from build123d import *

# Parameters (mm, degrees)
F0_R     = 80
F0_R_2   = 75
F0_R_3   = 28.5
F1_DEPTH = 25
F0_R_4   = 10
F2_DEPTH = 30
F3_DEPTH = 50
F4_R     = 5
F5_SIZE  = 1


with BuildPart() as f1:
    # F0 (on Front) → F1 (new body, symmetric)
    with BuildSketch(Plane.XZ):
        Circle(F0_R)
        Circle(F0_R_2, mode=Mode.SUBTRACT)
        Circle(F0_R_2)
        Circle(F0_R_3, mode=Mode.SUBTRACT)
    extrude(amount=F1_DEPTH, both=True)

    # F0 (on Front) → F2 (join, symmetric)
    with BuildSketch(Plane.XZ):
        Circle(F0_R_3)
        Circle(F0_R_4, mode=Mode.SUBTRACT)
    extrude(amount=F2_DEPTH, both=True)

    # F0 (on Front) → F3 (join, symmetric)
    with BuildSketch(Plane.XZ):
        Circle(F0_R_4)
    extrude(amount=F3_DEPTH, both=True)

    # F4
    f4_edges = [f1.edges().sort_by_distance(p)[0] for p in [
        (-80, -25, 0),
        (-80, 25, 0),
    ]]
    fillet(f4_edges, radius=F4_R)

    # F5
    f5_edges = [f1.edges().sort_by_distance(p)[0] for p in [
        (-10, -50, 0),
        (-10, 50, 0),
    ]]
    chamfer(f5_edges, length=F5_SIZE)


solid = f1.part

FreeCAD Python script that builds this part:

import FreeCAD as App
import Part
import Sketcher

V = App.Vector


def edges_at(feature, points):
    """Names of the edges that pass closest to the given points."""
    edges = feature.Shape.Edges
    near = lambda p: min(range(len(edges)), key=lambda i: edges[i].distToShape(Part.Vertex(*p))[0])
    return sorted({f"Edge{near(p) + 1}" for p in points})

doc = App.newDocument("Part")
body = doc.addObject("PartDesign::Body", "Body")

sketch1 = body.newObject("Sketcher::SketchObject", "Sketch")
sketch1.AttachmentSupport = (doc.getObject("XZ_Plane"), [""])
sketch1.MapMode = "FlatFace"
sketch1.addGeometry([
    Part.Circle(V(0, 0, 0), V(0, 0, 1), 80),
    Part.Circle(V(0, 0, 0), V(0, 0, 1), 28.5),
], False)
sketch1.addConstraint([
    Sketcher.Constraint("Coincident", 0, 3, -1, 1),
    Sketcher.Constraint("Coincident", 1, 3, -1, 1),
    Sketcher.Constraint("Diameter", 0, 160.0),
    Sketcher.Constraint("Diameter", 1, 57.0),
])
pad1 = body.newObject("PartDesign::Pad", "Pad")
pad1.Profile = sketch1
pad1.Length = 50
pad1.Midplane = True

sketch2 = body.newObject("Sketcher::SketchObject", "Sketch001")
sketch2.AttachmentSupport = (doc.getObject("XZ_Plane"), [""])
sketch2.MapMode = "FlatFace"
sketch2.addGeometry([
    Part.Circle(V(0, 0, 0), V(0, 0, 1), 28.5),
    Part.Circle(V(0, 0, 0), V(0, 0, 1), 10),
], False)
sketch2.addConstraint([
    Sketcher.Constraint("Coincident", 0, 3, -1, 1),
    Sketcher.Constraint("Coincident", 1, 3, -1, 1),
    Sketcher.Constraint("Diameter", 0, 57.0),
    Sketcher.Constraint("Diameter", 1, 20.0),
])
pad2 = body.newObject("PartDesign::Pad", "Pad001")
pad2.Profile = sketch2
pad2.Length = 60
pad2.Midplane = True

sketch3 = body.newObject("Sketcher::SketchObject", "Sketch002")
sketch3.AttachmentSupport = (doc.getObject("XZ_Plane"), [""])
sketch3.MapMode = "FlatFace"
sketch3.addGeometry(Part.Circle(V(0, 0, 0), V(0, 0, 1), 10), False)
sketch3.addConstraint([
    Sketcher.Constraint("Coincident", 0, 3, -1, 1),
    Sketcher.Constraint("Diameter", 0, 20.0),
])
pad3 = body.newObject("PartDesign::Pad", "Pad002")
pad3.Profile = sketch3
pad3.Length = 100
pad3.Midplane = True
doc.recompute()

fillet = body.newObject("PartDesign::Fillet", "Fillet")
fillet.Base = (pad3, edges_at(pad3, [(-80, -25, 0), (-80, 25, 0)]))
fillet.Radius = 5
doc.recompute()

chamfer = body.newObject("PartDesign::Chamfer", "Chamfer")
chamfer.Base = (fillet, edges_at(fillet, [(-10, -50, 0), (-10, 50, 0)]))
chamfer.Size = 1

doc.recompute()
